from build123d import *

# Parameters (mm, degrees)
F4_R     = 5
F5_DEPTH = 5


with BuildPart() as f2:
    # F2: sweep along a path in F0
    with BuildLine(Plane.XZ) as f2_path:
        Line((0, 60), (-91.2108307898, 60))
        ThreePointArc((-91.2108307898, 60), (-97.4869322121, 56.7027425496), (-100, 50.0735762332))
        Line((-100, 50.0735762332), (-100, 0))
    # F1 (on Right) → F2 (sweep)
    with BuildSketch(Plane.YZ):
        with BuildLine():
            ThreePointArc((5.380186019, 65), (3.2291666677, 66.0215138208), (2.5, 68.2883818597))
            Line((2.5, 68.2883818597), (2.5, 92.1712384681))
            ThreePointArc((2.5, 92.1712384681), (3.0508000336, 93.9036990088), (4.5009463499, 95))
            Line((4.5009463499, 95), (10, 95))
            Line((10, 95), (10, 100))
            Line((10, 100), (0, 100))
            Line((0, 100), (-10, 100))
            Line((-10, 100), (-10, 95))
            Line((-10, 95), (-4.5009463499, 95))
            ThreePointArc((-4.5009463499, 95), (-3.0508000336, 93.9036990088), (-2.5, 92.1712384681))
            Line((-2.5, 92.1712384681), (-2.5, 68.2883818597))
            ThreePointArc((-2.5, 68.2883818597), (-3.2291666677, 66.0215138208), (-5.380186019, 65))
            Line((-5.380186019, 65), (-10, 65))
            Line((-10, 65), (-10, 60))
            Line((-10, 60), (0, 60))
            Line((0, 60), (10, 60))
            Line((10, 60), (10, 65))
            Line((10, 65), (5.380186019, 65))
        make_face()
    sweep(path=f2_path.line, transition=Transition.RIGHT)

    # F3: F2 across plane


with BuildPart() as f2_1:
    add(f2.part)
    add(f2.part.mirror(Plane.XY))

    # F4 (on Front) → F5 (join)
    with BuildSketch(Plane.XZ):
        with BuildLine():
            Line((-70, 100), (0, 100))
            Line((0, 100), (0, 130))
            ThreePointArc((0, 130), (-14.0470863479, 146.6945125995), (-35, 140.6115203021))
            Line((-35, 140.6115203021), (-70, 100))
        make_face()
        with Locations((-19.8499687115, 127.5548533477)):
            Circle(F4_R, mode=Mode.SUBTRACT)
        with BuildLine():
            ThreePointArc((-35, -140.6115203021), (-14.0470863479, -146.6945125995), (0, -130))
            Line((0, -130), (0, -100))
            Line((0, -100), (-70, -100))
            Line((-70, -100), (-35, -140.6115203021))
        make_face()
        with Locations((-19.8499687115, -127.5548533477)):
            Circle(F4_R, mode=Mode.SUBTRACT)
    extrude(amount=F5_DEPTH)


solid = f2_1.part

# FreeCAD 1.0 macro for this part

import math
import FreeCAD as App
import Part
import Sketcher
from FreeCAD import Vector
Q = App.Units.Quantity

doc = App.newDocument("Part")
params = doc.addObject("Spreadsheet::Sheet", "Params")
for row, (alias, value) in enumerate([
    ("sketch1_radius", "3 mm"),
    ("sketch1_width", "20 mm"),
    ("sketch1_height", "5 mm"),
    ("sketch2_radius", "10 mm"),
    ("sketch3_diameter", "10 mm"),
    ("sketch3_radius", "20 mm"),
    ("sketch3_width", "70 mm"),
    ("sketch3_height", "30 mm"),
    ("pad1_length", "5 mm"),
], start=1):
    params.set(f"A{row}", alias)
    params.set(f"B{row}", "=" + value)
    params.setAlias(f"B{row}", alias)

body = doc.addObject("PartDesign::Body", "Body")

sketch1 = body.newObject("Sketcher::SketchObject", "Sketch")
sketch1.AttachmentSupport = (doc.getObject("YZ_Plane"), [""])
sketch1.MapMode = "FlatFace"
sketch1.addGeometry([
    Part.ArcOfCircle(Part.Circle(Vector(5.5, 68, 0), Vector(0, 0, 1), 3), math.radians(174), math.radians(268)),
    Part.LineSegment(Vector(2.5, 68.3, 0), Vector(2.5, 92.2, 0)),
    Part.ArcOfCircle(Part.Circle(Vector(5.5, 92.2, 0), Vector(0, 0, 1), 3), math.radians(109), math.radians(180)),
    Part.LineSegment(Vector(4.5, 95, 0), Vector(10, 95, 0)),
    Part.LineSegment(Vector(10, 95, 0), Vector(10, 100, 0)),
    Part.LineSegment(Vector(10, 100, 0), Vector(-10, 100, 0)),
    Part.LineSegment(Vector(-10, 100, 0), Vector(-10, 95, 0)),
    Part.LineSegment(Vector(-10, 95, 0), Vector(-4.5, 95, 0)),
    Part.ArcOfCircle(Part.Circle(Vector(-5.5, 92.2, 0), Vector(0, 0, 1), 3), math.radians(0), math.radians(71)),
    Part.LineSegment(Vector(-2.5, 92.2, 0), Vector(-2.5, 68.3, 0)),
    Part.ArcOfCircle(Part.Circle(Vector(-5.5, 68, 0), Vector(0, 0, 1), 3), math.radians(-88), math.radians(6)),
    Part.LineSegment(Vector(-5.4, 65, 0), Vector(-10, 65, 0)),
    Part.LineSegment(Vector(-10, 65, 0), Vector(-10, 60, 0)),
    Part.LineSegment(Vector(-10, 60, 0), Vector(10, 60, 0)),
    Part.LineSegment(Vector(10, 60, 0), Vector(10, 65, 0)),
    Part.LineSegment(Vector(10, 65, 0), Vector(5.4, 65, 0)),
], False)
sketch1.addConstraint([
    Sketcher.Constraint("Coincident", 0, 1, 1, 1),
    Sketcher.Constraint("Tangent", 1, 2, 2, 2),
    Sketcher.Constraint("Coincident", 2, 1, 3, 1),
    Sketcher.Constraint("Coincident", 3, 2, 4, 1),
    Sketcher.Constraint("Coincident", 4, 2, 5, 1),
    Sketcher.Constraint("Coincident", 5, 2, 6, 1),
    Sketcher.Constraint("Coincident", 6, 2, 7, 1),
    Sketcher.Constraint("Coincident", 7, 2, 8, 2),
    Sketcher.Constraint("Tangent", 8, 1, 9, 1),
    Sketcher.Constraint("Coincident", 9, 2, 10, 2),
    Sketcher.Constraint("Coincident", 10, 1, 11, 1),
    Sketcher.Constraint("Coincident", 11, 2, 12, 1),
    Sketcher.Constraint("Coincident", 12, 2, 13, 1),
    Sketcher.Constraint("Coincident", 13, 2, 14, 1),
    Sketcher.Constraint("Coincident", 14, 2, 15, 1),
    Sketcher.Constraint("Coincident", 15, 2, 0, 2),
    Sketcher.Constraint("Vertical", 1),
    Sketcher.Constraint("Horizontal", 3),
    Sketcher.Constraint("Vertical", 4),
    Sketcher.Constraint("Horizontal", 5),
    Sketcher.Constraint("Vertical", 6),
    Sketcher.Constraint("Horizontal", 7),
    Sketcher.Constraint("Vertical", 9),
    Sketcher.Constraint("Horizontal", 11),
    Sketcher.Constraint("Vertical", 12),
    Sketcher.Constraint("Horizontal", 13),
    Sketcher.Constraint("Vertical", 14),
    Sketcher.Constraint("Horizontal", 15),
    Sketcher.Constraint("Equal", 0, 2),
    Sketcher.Constraint("Equal", 2, 8),
    Sketcher.Constraint("Equal", 8, 10),
    Sketcher.Constraint("Symmetric", 2, 3, 8, 3, -2),
    Sketcher.Constraint("Symmetric", 0, 3, 10, 3, -2),
    Sketcher.Constraint("Symmetric", 3, 2, 6, 2, -2),
    Sketcher.Constraint("Symmetric", 11, 2, 14, 2, -2),
    Sketcher.Constraint("Vertical", 6, 2, 11, 2),
    Sketcher.Constraint("Equal", 6, 12),
    Sketcher.Constraint("Radius", 0, Q("3 mm")),
    Sketcher.Constraint("DistanceX", 5, 2, 5, 1, Q("20 mm")),
    Sketcher.Constraint("DistanceY", 4, 1, 4, 2, Q("5 mm")),
    Sketcher.Constraint("DistanceY", -1, 1, 2, 1, Q("95 mm")),
    Sketcher.Constraint("DistanceY", -1, 1, 10, 1, Q("65 mm")),
    Sketcher.Constraint("DistanceX", 8, 3, 2, 3, Q("11 mm")),
    Sketcher.Constraint("DistanceX", 3, 1, 3, 2, Q("5.499054 mm")),
    Sketcher.Constraint("DistanceX", 11, 2, 11, 1, Q("4.619814 mm")),
    Sketcher.Constraint("DistanceY", 1, 1, 1, 2, Q("23.882857 mm")),
])
sketch1.setExpression("Constraints[37]", "Params.sketch1_radius")
sketch1.setExpression("Constraints[38]", "Params.sketch1_width")
sketch1.setExpression("Constraints[39]", "Params.sketch1_height")

sketch2 = body.newObject("Sketcher::SketchObject", "Sketch001")
sketch2.AttachmentSupport = (doc.getObject("XZ_Plane"), [""])
sketch2.MapMode = "FlatFace"
sketch2.addGeometry([
    Part.LineSegment(Vector(0, 60, 0), Vector(-91, 60, 0)),
    Part.ArcOfCircle(Part.Circle(Vector(-90, 50, 0), Vector(0, 0, 1), 10), math.radians(97), math.radians(180)),
    Part.LineSegment(Vector(-100, 50, 0), Vector(-100, 0, 0)),
], False)
sketch2.addConstraint([
    Sketcher.Constraint("Coincident", 0, 2, 1, 1),
    Sketcher.Constraint("Tangent", 1, 2, 2, 1),
    Sketcher.Constraint("Horizontal", 0),
    Sketcher.Constraint("Vertical", 2),
    Sketcher.Constraint("PointOnObject", 0, 1, -2),
    Sketcher.Constraint("PointOnObject", 2, 2, -1),
    Sketcher.Constraint("Radius", 1, Q("10 mm")),
    Sketcher.Constraint("DistanceX", 1, 3, -1, 1, Q("90 mm")),
    Sketcher.Constraint("DistanceY", -1, 1, 0, 1, Q("60 mm")),
    Sketcher.Constraint("DistanceX", 0, 2, 0, 1, Q("91.210831 mm")),
])
sketch2.setExpression("Constraints[6]", "Params.sketch2_radius")
doc.recompute()

additivepipe = body.newObject("PartDesign::AdditivePipe", "AdditivePipe")
additivepipe.Profile = sketch1
additivepipe.Spine = (sketch2, ["Edge1", "Edge2", "Edge3"])
additivepipe.Transition = "Right corner"
body2 = doc.addObject("PartDesign::Body", "Body001")
doc.recompute()

body2.BaseFeature = body
doc.recompute()

mirroring = doc.addObject("Part::Mirroring", "Mirroring")
mirroring.Source = body
mirroring.Base = Vector(0, 0, 0)
mirroring.Normal = Vector(0, 0, 1)
body3 = doc.addObject("PartDesign::Body", "Body002")
body3.BaseFeature = mirroring
boolean = body2.newObject("PartDesign::Boolean", "Boolean")
boolean.Type = "Fuse"
boolean.addObjects([body3])
doc.recompute()

sketch3 = body2.newObject("Sketcher::SketchObject", "Sketch002")
sketch3.AttachmentSupport = (doc.getObject("XZ_Plane001"), [""])
sketch3.MapMode = "FlatFace"
sketch3.addGeometry([
    Part.LineSegment(Vector(-70, 100, 0), Vector(0, 100, 0)),
    Part.LineSegment(Vector(0, 100, 0), Vector(0, 130, 0)),
    Part.ArcOfCircle(Part.Circle(Vector(-20, 128, 0), Vector(0, 0, 1), 20), math.radians(7), math.radians(139)),
    Part.LineSegment(Vector(-35, 141, 0), Vector(-70, 100, 0)),
    Part.Circle(Vector(-20, 128, 0), Vector(0, 0, 1), 5),
    Part.ArcOfCircle(Part.Circle(Vector(-20, -128, 0), Vector(0, 0, 1), 20), math.radians(-139), math.radians(-7)),
    Part.LineSegment(Vector(0, -130, 0), Vector(0, -100, 0)),
    Part.LineSegment(Vector(0, -100, 0), Vector(-70, -100, 0)),
    Part.LineSegment(Vector(-70, -100, 0), Vector(-35, -141, 0)),
    Part.Circle(Vector(-20, -128, 0), Vector(0, 0, 1), 5),
], False)
sketch3.addConstraint([
    Sketcher.Constraint("Coincident", 0, 2, 1, 1),
    Sketcher.Constraint("Coincident", 1, 2, 2, 1),
    Sketcher.Constraint("Tangent", 2, 2, 3, 1),
    Sketcher.Constraint("Coincident", 3, 2, 0, 1),
    Sketcher.Constraint("Coincident", 5, 2, 6, 1),
    Sketcher.Constraint("Coincident", 6, 2, 7, 1),
    Sketcher.Constraint("Coincident", 7, 2, 8, 1),
    Sketcher.Constraint("Tangent", 8, 2, 5, 1),
    Sketcher.Constraint("Horizontal", 0),
    Sketcher.Constraint("Vertical", 1),
    Sketcher.Constraint("Vertical", 6),
    Sketcher.Constraint("Horizontal", 7),
    Sketcher.Constraint("Coincident", 4, 3, 2, 3),
    Sketcher.Constraint("Coincident", 9, 3, 5, 3),
    Sketcher.Constraint("Equal", 2, 5),
    Sketcher.Constraint("Equal", 4, 9),
    Sketcher.Constraint("Symmetric", 1, 2, 5, 2, -1, 1),
    Sketcher.Constraint("Symmetric", 2, 3, 5, 3, -1),
    Sketcher.Constraint("Symmetric", 3, 2, 7, 2, -1),
    Sketcher.Constraint("Diameter", 4, Q("10 mm")),
    Sketcher.Constraint("Radius", 2, Q("20 mm")),
    Sketcher.Constraint("DistanceX", 0, 1, 0, 2, Q("70 mm")),
    Sketcher.Constraint("DistanceY", 1, 1, 1, 2, Q("30 mm")),
    Sketcher.Constraint("DistanceY", -1, 1, 0, 2, Q("100 mm")),
    Sketcher.Constraint("DistanceX", 2, 2, -1, 1, Q("35 mm")),
])
sketch3.setExpression("Constraints[19]", "Params.sketch3_diameter")
sketch3.setExpression("Constraints[20]", "Params.sketch3_radius")
sketch3.setExpression("Constraints[21]", "Params.sketch3_width")
sketch3.setExpression("Constraints[22]", "Params.sketch3_height")
pad1 = body2.newObject("PartDesign::Pad", "Pad")
pad1.Profile = sketch3
pad1.setExpression("Length", "Params.pad1_length")
mirroring.Visibility = False

doc.recompute()
